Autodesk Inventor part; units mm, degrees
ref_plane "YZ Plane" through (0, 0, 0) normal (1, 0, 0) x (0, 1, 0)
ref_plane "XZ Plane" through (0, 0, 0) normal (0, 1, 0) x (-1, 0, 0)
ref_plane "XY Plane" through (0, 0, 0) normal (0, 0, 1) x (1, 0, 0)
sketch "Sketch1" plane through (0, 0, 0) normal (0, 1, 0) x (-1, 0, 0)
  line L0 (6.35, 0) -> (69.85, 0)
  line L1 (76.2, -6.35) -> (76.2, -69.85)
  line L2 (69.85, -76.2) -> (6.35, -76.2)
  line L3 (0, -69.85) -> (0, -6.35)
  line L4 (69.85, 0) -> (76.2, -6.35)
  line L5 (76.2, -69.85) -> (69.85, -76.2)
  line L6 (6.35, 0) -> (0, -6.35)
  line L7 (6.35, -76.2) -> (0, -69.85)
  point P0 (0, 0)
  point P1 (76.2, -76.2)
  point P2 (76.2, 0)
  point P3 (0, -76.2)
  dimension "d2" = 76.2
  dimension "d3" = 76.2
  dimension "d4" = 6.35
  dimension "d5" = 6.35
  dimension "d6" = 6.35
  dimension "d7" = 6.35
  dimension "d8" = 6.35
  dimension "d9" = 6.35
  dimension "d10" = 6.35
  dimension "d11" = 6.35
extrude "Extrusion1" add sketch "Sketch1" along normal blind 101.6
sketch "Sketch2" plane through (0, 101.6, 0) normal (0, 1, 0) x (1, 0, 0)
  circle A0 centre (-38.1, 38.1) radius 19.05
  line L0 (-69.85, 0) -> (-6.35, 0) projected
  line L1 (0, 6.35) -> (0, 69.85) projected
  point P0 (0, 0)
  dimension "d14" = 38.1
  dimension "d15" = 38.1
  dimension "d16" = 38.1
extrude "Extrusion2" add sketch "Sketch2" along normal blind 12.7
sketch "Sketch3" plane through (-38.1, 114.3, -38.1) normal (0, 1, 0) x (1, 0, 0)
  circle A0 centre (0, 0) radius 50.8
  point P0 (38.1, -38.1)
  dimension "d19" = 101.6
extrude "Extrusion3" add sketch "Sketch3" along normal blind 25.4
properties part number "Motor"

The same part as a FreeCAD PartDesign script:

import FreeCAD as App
import Part
import Sketcher

V = App.Vector
Q = App.Units.Quantity


def add_polygon(sketch, points):
    """Adds a closed chain of lines whose ends are joined by coincident constraints."""
    first, n = sketch.GeometryCount, len(points)
    for a, b in zip(points, points[1:] + points[:1]):
        sketch.addGeometry(Part.LineSegment(App.Vector(*a, 0), App.Vector(*b, 0)), False)
    for i in range(n):
        sketch.addConstraint(Sketcher.Constraint("Coincident", first + i, 2, first + (i + 1) % n, 1))

doc = App.newDocument("Part")
params = doc.addObject("Spreadsheet::Sheet", "Params")
for row, (alias, value) in enumerate([
    ("pad1_length", "4 in"),
    ("sketch2_diameter", "1.5 in"),
    ("pad2_length", "0.5 in"),
    ("sketch3_diameter", "4 in"),
    ("pad3_length", "1 in"),
], start=1):
    params.set(f"A{row}", alias)
    params.set(f"B{row}", "=" + value)
    params.setAlias(f"B{row}", alias)

body = doc.addObject("PartDesign::Body", "Body")

# Sketch on XZ plane
sketch1 = body.newObject("Sketcher::SketchObject", "Sketch")
sketch1.AttachmentSupport = (doc.getObject("XZ_Plane"), [""])
sketch1.MapMode = "FlatFace"
add_polygon(sketch1, [(-70, 0), (-6, 0), (0, -6), (0, -70), (-6, -76), (-70, -76), (-76, -70), (-76, -6)])  # lines 0-7
sketch1.addConstraint(Sketcher.Constraint("Horizontal", 0))
sketch1.addConstraint(Sketcher.Constraint("Vertical", 2))
sketch1.addConstraint(Sketcher.Constraint("Horizontal", 4))
sketch1.addConstraint(Sketcher.Constraint("Vertical", 6))
sketch1.addConstraint(Sketcher.Constraint("PointOnObject", 0, 2, -1))
sketch1.addConstraint(Sketcher.Constraint("PointOnObject", 1, 2, -2))
sketch1.addConstraint(Sketcher.Constraint("Perpendicular", 1, 3))
sketch1.addConstraint(Sketcher.Constraint("Perpendicular", 3, 5))
sketch1.addConstraint(Sketcher.Constraint("Perpendicular", 5, 7))
sketch1.addConstraint(Sketcher.Constraint("Horizontal", 2, 2, 5, 2))
sketch1.addConstraint(Sketcher.Constraint("Horizontal", 1, 2, 6, 2))
sketch1.addConstraint(Sketcher.Constraint("Vertical", 0, 2, 3, 2))
sketch1.addConstraint(Sketcher.Constraint("Vertical", 4, 2, 7, 2))
sketch1.addConstraint(Sketcher.Constraint("Equal", 4, 2))
sketch1.addConstraint(Sketcher.Constraint("DistanceY", 3, 2, -1, 1, Q("3 in")))
sketch1.addConstraint(Sketcher.Constraint("DistanceX", 0, 2, -1, 1, Q("0.25 in")))
pad1 = body.newObject("PartDesign::Pad", "Pad")
pad1.Profile = sketch1
pad1.setExpression("Length", "Params.pad1_length")
pad1.Reversed = True

# Sketch on XZ plane
sketch2 = body.newObject("Sketcher::SketchObject", "Sketch001")
sketch2.AttachmentSupport = (doc.getObject("XZ_Plane"), [""])
sketch2.MapMode = "FlatFace"
sketch2.AttachmentOffset = App.Placement(V(0, 0, -4 * 25.4), App.Rotation())
sketch2.addGeometry(Part.Circle(V(-38, -38, 0), V(0, 0, 1), 19), False)
sketch2.addConstraint(Sketcher.Constraint("Diameter", 0, Q("1.5 in")))
sketch2.addConstraint(Sketcher.Constraint("DistanceX", 0, 3, -1, 1, Q("1.5 in")))
sketch2.addConstraint(Sketcher.Constraint("DistanceY", 0, 3, -1, 1, Q("1.5 in")))
sketch2.setExpression("Constraints[0]", "Params.sketch2_diameter")
pad2 = body.newObject("PartDesign::Pad", "Pad001")
pad2.Profile = sketch2
pad2.setExpression("Length", "Params.pad2_length")
pad2.Reversed = True

# Sketch on XZ plane
sketch3 = body.newObject("Sketcher::SketchObject", "Sketch002")
sketch3.AttachmentSupport = (doc.getObject("XZ_Plane"), [""])
sketch3.MapMode = "FlatFace"
sketch3.AttachmentOffset = App.Placement(V(0, 0, -4.5 * 25.4), App.Rotation())
sketch3.addGeometry(Part.Circle(V(-38, -38, 0), V(0, 0, 1), 51), False)
sketch3.addConstraint(Sketcher.Constraint("Diameter", 0, Q("4 in")))
sketch3.addConstraint(Sketcher.Constraint("DistanceX", 0, 3, -1, 1, Q("1.5 in")))
sketch3.addConstraint(Sketcher.Constraint("DistanceY", 0, 3, -1, 1, Q("1.5 in")))
sketch3.setExpression("Constraints[0]", "Params.sketch3_diameter")
pad3 = body.newObject("PartDesign::Pad", "Pad002")
pad3.Profile = sketch3
pad3.setExpression("Length", "Params.pad3_length")
pad3.Reversed = True

doc.recompute()
